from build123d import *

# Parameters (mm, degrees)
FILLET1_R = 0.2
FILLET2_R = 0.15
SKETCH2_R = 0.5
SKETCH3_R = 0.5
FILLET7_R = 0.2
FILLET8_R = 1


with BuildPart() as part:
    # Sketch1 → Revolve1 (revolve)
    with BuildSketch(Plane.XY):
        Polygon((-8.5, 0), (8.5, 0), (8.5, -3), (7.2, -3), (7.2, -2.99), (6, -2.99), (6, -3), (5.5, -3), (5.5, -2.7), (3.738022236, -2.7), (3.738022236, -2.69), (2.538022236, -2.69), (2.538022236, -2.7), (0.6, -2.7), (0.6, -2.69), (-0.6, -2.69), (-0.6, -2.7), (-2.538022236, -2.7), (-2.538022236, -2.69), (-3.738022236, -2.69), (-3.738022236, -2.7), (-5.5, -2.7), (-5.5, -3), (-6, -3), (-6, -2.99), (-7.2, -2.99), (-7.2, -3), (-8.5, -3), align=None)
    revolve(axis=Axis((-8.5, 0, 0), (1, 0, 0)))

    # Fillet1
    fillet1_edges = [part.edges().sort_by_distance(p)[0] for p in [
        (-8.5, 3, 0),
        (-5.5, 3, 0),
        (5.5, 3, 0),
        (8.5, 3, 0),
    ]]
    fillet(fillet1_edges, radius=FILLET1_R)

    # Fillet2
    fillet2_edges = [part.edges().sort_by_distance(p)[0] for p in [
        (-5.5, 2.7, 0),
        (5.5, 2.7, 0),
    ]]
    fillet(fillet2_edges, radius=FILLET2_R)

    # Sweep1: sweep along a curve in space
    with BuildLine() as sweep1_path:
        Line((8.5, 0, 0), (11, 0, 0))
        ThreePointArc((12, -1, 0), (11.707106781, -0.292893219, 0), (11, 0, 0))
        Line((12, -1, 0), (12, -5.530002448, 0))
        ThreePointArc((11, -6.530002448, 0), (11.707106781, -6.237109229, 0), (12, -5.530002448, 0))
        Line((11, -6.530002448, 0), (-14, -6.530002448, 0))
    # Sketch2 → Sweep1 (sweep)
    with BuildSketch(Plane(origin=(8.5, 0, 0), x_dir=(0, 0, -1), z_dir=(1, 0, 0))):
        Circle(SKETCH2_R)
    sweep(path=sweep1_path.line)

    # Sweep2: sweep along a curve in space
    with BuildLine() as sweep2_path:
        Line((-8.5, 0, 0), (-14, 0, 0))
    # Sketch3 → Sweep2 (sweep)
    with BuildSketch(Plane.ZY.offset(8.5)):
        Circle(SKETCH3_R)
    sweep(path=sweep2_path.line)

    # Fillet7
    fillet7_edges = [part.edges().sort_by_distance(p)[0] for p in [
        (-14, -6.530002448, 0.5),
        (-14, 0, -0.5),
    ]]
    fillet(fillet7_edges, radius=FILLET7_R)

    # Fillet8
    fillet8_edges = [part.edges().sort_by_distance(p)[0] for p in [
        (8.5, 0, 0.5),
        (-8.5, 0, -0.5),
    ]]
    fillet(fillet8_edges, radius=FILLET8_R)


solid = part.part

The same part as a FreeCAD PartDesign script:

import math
import FreeCAD as App
import Part
import Sketcher


def edges_at(feature, points):
    """Names of the edges that pass closest to the given points."""
    edges = feature.Shape.Edges
    near = lambda p: min(range(len(edges)), key=lambda i: edges[i].distToShape(Part.Vertex(*p))[0])
    return sorted({f"Edge{near(p) + 1}" for p in points})

doc = App.newDocument("Part")
body = doc.addObject("PartDesign::Body", "Body")

sketch1 = doc.addObject("Sketcher::SketchObject", "Sketch")
body.addObject(sketch1)
sketch1.AttachmentSupport = (doc.XY_Plane, [""])
sketch1.MapMode = "FlatFace"
sketch1.addGeometry([
    Part.LineSegment(App.Vector(8.5, 0, 0), App.Vector(-8.5, 0, 0)),
    Part.LineSegment(App.Vector(-8.5, 0, 0), App.Vector(-8.5, -3, 0)),
    Part.LineSegment(App.Vector(-8.5, -3, 0), App.Vector(-7.2, -3, 0)),
    Part.LineSegment(App.Vector(-7.2, -3, 0), App.Vector(-7.2, -2.99, 0)),
    Part.LineSegment(App.Vector(-7.2, -2.99, 0), App.Vector(-6, -2.99, 0)),
    Part.LineSegment(App.Vector(-6, -2.99, 0), App.Vector(-6, -3, 0)),
    Part.LineSegment(App.Vector(-6, -3, 0), App.Vector(-5.5, -3, 0)),
    Part.LineSegment(App.Vector(-5.5, -3, 0), App.Vector(-5.5, -2.7, 0)),
    Part.LineSegment(App.Vector(-5.5, -2.7, 0), App.Vector(-3.738, -2.7, 0)),
    Part.LineSegment(App.Vector(-3.738, -2.7, 0), App.Vector(-3.738, -2.69, 0)),
    Part.LineSegment(App.Vector(-3.738, -2.69, 0), App.Vector(-2.538, -2.69, 0)),
    Part.LineSegment(App.Vector(-2.538, -2.69, 0), App.Vector(-2.538, -2.7, 0)),
    Part.LineSegment(App.Vector(-2.538, -2.7, 0), App.Vector(-0.6, -2.7, 0)),
    Part.LineSegment(App.Vector(-0.6, -2.7, 0), App.Vector(-0.6, -2.69, 0)),
    Part.LineSegment(App.Vector(-0.6, -2.69, 0), App.Vector(0.6, -2.69, 0)),
    Part.LineSegment(App.Vector(0.6, -2.69, 0), App.Vector(0.6, -2.7, 0)),
    Part.LineSegment(App.Vector(0.6, -2.7, 0), App.Vector(2.538, -2.7, 0)),
    Part.LineSegment(App.Vector(2.538, -2.7, 0), App.Vector(2.538, -2.69, 0)),
    Part.LineSegment(App.Vector(2.538, -2.69, 0), App.Vector(3.738, -2.69, 0)),
    Part.LineSegment(App.Vector(3.738, -2.69, 0), App.Vector(3.738, -2.7, 0)),
    Part.LineSegment(App.Vector(3.738, -2.7, 0), App.Vector(5.5, -2.7, 0)),
    Part.LineSegment(App.Vector(5.5, -2.7, 0), App.Vector(5.5, -3, 0)),
    Part.LineSegment(App.Vector(5.5, -3, 0), App.Vector(6, -3, 0)),
    Part.LineSegment(App.Vector(6, -3, 0), App.Vector(6, -2.99, 0)),
    Part.LineSegment(App.Vector(6, -2.99, 0), App.Vector(7.2, -2.99, 0)),
    Part.LineSegment(App.Vector(7.2, -2.99, 0), App.Vector(7.2, -3, 0)),
    Part.LineSegment(App.Vector(7.2, -3, 0), App.Vector(8.5, -3, 0)),
    Part.LineSegment(App.Vector(8.5, -3, 0), App.Vector(8.5, 0, 0)),
], False)
sketch1.addConstraint([
    Sketcher.Constraint("Coincident", 0, 2, 1, 1),
    Sketcher.Constraint("Coincident", 1, 2, 2, 1),
    Sketcher.Constraint("Coincident", 2, 2, 3, 1),
    Sketcher.Constraint("Coincident", 3, 2, 4, 1),
    Sketcher.Constraint("Coincident", 4, 2, 5, 1),
    Sketcher.Constraint("Coincident", 5, 2, 6, 1),
    Sketcher.Constraint("Coincident", 6, 2, 7, 1),
    Sketcher.Constraint("Coincident", 7, 2, 8, 1),
    Sketcher.Constraint("Coincident", 8, 2, 9, 1),
    Sketcher.Constraint("Coincident", 9, 2, 10, 1),
    Sketcher.Constraint("Coincident", 10, 2, 11, 1),
    Sketcher.Constraint("Coincident", 11, 2, 12, 1),
    Sketcher.Constraint("Coincident", 12, 2, 13, 1),
    Sketcher.Constraint("Coincident", 13, 2, 14, 1),
    Sketcher.Constraint("Coincident", 14, 2, 15, 1),
    Sketcher.Constraint("Coincident", 15, 2, 16, 1),
    Sketcher.Constraint("Coincident", 16, 2, 17, 1),
    Sketcher.Constraint("Coincident", 17, 2, 18, 1),
    Sketcher.Constraint("Coincident", 18, 2, 19, 1),
    Sketcher.Constraint("Coincident", 19, 2, 20, 1),
    Sketcher.Constraint("Coincident", 20, 2, 21, 1),
    Sketcher.Constraint("Coincident", 21, 2, 22, 1),
    Sketcher.Constraint("Coincident", 22, 2, 23, 1),
    Sketcher.Constraint("Coincident", 23, 2, 24, 1),
    Sketcher.Constraint("Coincident", 24, 2, 25, 1),
    Sketcher.Constraint("Coincident", 25, 2, 26, 1),
    Sketcher.Constraint("Coincident", 26, 2, 27, 1),
    Sketcher.Constraint("Coincident", 27, 2, 0, 1),
    Sketcher.Constraint("Horizontal", 0),
    Sketcher.Constraint("Vertical", 1),
    Sketcher.Constraint("Horizontal", 2),
    Sketcher.Constraint("Vertical", 3),
    Sketcher.Constraint("Horizontal", 4),
    Sketcher.Constraint("Vertical", 5),
    Sketcher.Constraint("Horizontal", 6),
    Sketcher.Constraint("Vertical", 7),
    Sketcher.Constraint("Horizontal", 8),
    Sketcher.Constraint("Vertical", 9),
    Sketcher.Constraint("Horizontal", 10),
    Sketcher.Constraint("Vertical", 11),
    Sketcher.Constraint("Horizontal", 12),
    Sketcher.Constraint("Vertical", 13),
    Sketcher.Constraint("Horizontal", 14),
    Sketcher.Constraint("Vertical", 15),
    Sketcher.Constraint("Horizontal", 16),
    Sketcher.Constraint("Vertical", 17),
    Sketcher.Constraint("Horizontal", 18),
    Sketcher.Constraint("Vertical", 19),
    Sketcher.Constraint("Horizontal", 20),
    Sketcher.Constraint("Vertical", 21),
    Sketcher.Constraint("Horizontal", 22),
    Sketcher.Constraint("Vertical", 23),
    Sketcher.Constraint("Horizontal", 24),
    Sketcher.Constraint("Vertical", 25),
    Sketcher.Constraint("Horizontal", 26),
    Sketcher.Constraint("Vertical", 27),
    Sketcher.Constraint("Symmetric", 0, 2, 27, 2, -1, 1),
    Sketcher.Constraint("Symmetric", 12, 2, 15, 2, -2),
    Sketcher.Constraint("Symmetric", 10, 2, 17, 2, -2),
    Sketcher.Constraint("Symmetric", 8, 2, 19, 2, -2),
    Sketcher.Constraint("Symmetric", 6, 2, 21, 2, -2),
    Sketcher.Constraint("Symmetric", 4, 2, 23, 2, -2),
    Sketcher.Constraint("Symmetric", 2, 2, 25, 2, -2),
    Sketcher.Constraint("Horizontal", 2, 2, 5, 2),
    Sketcher.Constraint("Horizontal", 8, 2, 11, 2),
    Sketcher.Constraint("Horizontal", 10, 2, 13, 2),
    Sketcher.Constraint("Equal", 4, 10),
    Sketcher.Constraint("Equal", 10, 14),
    Sketcher.Constraint("Equal", 5, 9),
    Sketcher.Constraint("DistanceX", 0, 2, 0, 1, 17.0),
    Sketcher.Constraint("DistanceY", 1, 2, 1, 1, 3.0),
    Sketcher.Constraint("DistanceX", 2, 1, 2, 2, 1.3),
    Sketcher.Constraint("DistanceX", 4, 1, 4, 2, 1.2),
    Sketcher.Constraint("DistanceX", 6, 1, 6, 2, 0.5),
    Sketcher.Constraint("DistanceY", 7, 1, 7, 2, 0.3),
    Sketcher.Constraint("DistanceY", 3, 1, 3, 2, 0.01),
    Sketcher.Constraint("DistanceX", 8, 1, 8, 2, 1.761978),
])
revolution = doc.addObject("PartDesign::Revolution", "Revolution")
body.addObject(revolution)
revolution.Profile = sketch1
revolution.ReferenceAxis = (sketch1, ["H_Axis"])
revolution.Angle = 360
doc.recompute()

fillet = doc.addObject("PartDesign::Fillet", "Fillet")
body.addObject(fillet)
fillet.Base = (revolution, edges_at(revolution, [
    (-8.5, 3, 0),
    (-5.5, 3, 0),
    (5.5, 3, 0),
    (8.5, 3, 0),
]))
fillet.Radius = 0.2
doc.recompute()

fillet2 = doc.addObject("PartDesign::Fillet", "Fillet001")
body.addObject(fillet2)
fillet2.Base = (fillet, edges_at(fillet, [(-5.5, 2.7, 0), (5.5, 2.7, 0)]))
fillet2.Radius = 0.15

sketch2 = doc.addObject("Sketcher::SketchObject", "Sketch001")
body.addObject(sketch2)
sketch2.AttachmentSupport = (doc.YZ_Plane, [""])
sketch2.MapMode = "FlatFace"
sketch2.AttachmentOffset = App.Placement(App.Vector(0, 0, 8.5), App.Rotation())
sketch2.addGeometry(Part.Circle(App.Vector(0, 0, 0), App.Vector(0, 0, 1), 0.5), False)
sketch2.addConstraint([
    Sketcher.Constraint("Coincident", 0, 3, -1, 1),
    Sketcher.Constraint("Diameter", 0, 1.0),
])

sketch3 = doc.addObject("Sketcher::SketchObject", "Sketch002")
body.addObject(sketch3)
sketch3.AttachmentSupport = (doc.XY_Plane, [""])
sketch3.MapMode = "FlatFace"
sketch3.addGeometry([
    Part.LineSegment(App.Vector(8.5, 0, 0), App.Vector(11, 0, 0)),
    Part.ArcOfCircle(Part.Circle(App.Vector(11, -1, 0), App.Vector(0, 0, 1), 1), math.radians(0), math.radians(90)),
    Part.LineSegment(App.Vector(12, -1, 0), App.Vector(12, -5.5, 0)),
    Part.ArcOfCircle(Part.Circle(App.Vector(11, -5.5, 0), App.Vector(0, 0, 1), 1), math.radians(-90), math.radians(0)),
    Part.LineSegment(App.Vector(11, -6.5, 0), App.Vector(-14, -6.5, 0)),
], False)
sketch3.addConstraint([
    Sketcher.Constraint("Tangent", 0, 2, 1, 2),
    Sketcher.Constraint("Tangent", 1, 1, 2, 1),
    Sketcher.Constraint("Tangent", 2, 2, 3, 2),
    Sketcher.Constraint("Tangent", 3, 1, 4, 1),
    Sketcher.Constraint("Horizontal", 0),
    Sketcher.Constraint("Vertical", 2),
    Sketcher.Constraint("Horizontal", 4),
    Sketcher.Constraint("Equal", 1, 3),
    Sketcher.Constraint("PointOnObject", 0, 1, -1),
    Sketcher.Constraint("Radius", 1, 1.0),
    Sketcher.Constraint("DistanceX", 4, 2, 4, 1, 25.0),
    Sketcher.Constraint("DistanceX", 0, 1, 0, 2, 2.5),
    Sketcher.Constraint("DistanceX", -1, 1, 1, 3, 11.0),
    Sketcher.Constraint("DistanceY", 2, 2, 2, 1, 4.530002),
])
doc.recompute()

additivepipe = doc.addObject("PartDesign::AdditivePipe", "AdditivePipe")
body.addObject(additivepipe)
additivepipe.Profile = sketch2
additivepipe.Spine = (sketch3, ["Edge1", "Edge2", "Edge3", "Edge4", "Edge5"])

sketch4 = doc.addObject("Sketcher::SketchObject", "Sketch003")
body.addObject(sketch4)
sketch4.AttachmentSupport = (doc.YZ_Plane, [""])
sketch4.MapMode = "FlatFace"
sketch4.AttachmentOffset = App.Placement(App.Vector(0, 0, -8.5), App.Rotation())
sketch4.addGeometry(Part.Circle(App.Vector(0, 0, 0), App.Vector(0, 0, 1), 0.5), False)
sketch4.addConstraint([
    Sketcher.Constraint("Coincident", 0, 3, -1, 1),
    Sketcher.Constraint("Diameter", 0, 1.0),
])

sketch5 = doc.addObject("Sketcher::SketchObject", "Sketch004")
body.addObject(sketch5)
sketch5.AttachmentSupport = (doc.XY_Plane, [""])
sketch5.MapMode = "FlatFace"
sketch5.addGeometry(Part.LineSegment(App.Vector(-8, 0, 0), App.Vector(-14, 0, 0)), False)
sketch5.addConstraint([
    Sketcher.Constraint("Horizontal", 0),
    Sketcher.Constraint("PointOnObject", 0, 1, -1),
    Sketcher.Constraint("DistanceX", 0, 2, 0, 1, 5.5),
    Sketcher.Constraint("DistanceX", 0, 2, -1, 1, 14.0),
])
doc.recompute()

additivepipe2 = doc.addObject("PartDesign::AdditivePipe", "AdditivePipe001")
body.addObject(additivepipe2)
additivepipe2.Profile = sketch4
additivepipe2.Spine = (sketch5, ["Edge1"])
doc.recompute()

fillet3 = doc.addObject("PartDesign::Fillet", "Fillet002")
body.addObject(fillet3)
fillet3.Base = (additivepipe2, edges_at(additivepipe2, [(-14, -6.53, 0.5), (-14, 0, -0.5)]))
fillet3.Radius = 0.2
doc.recompute()

fillet4 = doc.addObject("PartDesign::Fillet", "Fillet003")
body.addObject(fillet4)
fillet4.Base = (fillet3, edges_at(fillet3, [(8.5, 0, 0.5), (-8.5, 0, -0.5)]))
fillet4.Radius = 1

doc.recompute()
